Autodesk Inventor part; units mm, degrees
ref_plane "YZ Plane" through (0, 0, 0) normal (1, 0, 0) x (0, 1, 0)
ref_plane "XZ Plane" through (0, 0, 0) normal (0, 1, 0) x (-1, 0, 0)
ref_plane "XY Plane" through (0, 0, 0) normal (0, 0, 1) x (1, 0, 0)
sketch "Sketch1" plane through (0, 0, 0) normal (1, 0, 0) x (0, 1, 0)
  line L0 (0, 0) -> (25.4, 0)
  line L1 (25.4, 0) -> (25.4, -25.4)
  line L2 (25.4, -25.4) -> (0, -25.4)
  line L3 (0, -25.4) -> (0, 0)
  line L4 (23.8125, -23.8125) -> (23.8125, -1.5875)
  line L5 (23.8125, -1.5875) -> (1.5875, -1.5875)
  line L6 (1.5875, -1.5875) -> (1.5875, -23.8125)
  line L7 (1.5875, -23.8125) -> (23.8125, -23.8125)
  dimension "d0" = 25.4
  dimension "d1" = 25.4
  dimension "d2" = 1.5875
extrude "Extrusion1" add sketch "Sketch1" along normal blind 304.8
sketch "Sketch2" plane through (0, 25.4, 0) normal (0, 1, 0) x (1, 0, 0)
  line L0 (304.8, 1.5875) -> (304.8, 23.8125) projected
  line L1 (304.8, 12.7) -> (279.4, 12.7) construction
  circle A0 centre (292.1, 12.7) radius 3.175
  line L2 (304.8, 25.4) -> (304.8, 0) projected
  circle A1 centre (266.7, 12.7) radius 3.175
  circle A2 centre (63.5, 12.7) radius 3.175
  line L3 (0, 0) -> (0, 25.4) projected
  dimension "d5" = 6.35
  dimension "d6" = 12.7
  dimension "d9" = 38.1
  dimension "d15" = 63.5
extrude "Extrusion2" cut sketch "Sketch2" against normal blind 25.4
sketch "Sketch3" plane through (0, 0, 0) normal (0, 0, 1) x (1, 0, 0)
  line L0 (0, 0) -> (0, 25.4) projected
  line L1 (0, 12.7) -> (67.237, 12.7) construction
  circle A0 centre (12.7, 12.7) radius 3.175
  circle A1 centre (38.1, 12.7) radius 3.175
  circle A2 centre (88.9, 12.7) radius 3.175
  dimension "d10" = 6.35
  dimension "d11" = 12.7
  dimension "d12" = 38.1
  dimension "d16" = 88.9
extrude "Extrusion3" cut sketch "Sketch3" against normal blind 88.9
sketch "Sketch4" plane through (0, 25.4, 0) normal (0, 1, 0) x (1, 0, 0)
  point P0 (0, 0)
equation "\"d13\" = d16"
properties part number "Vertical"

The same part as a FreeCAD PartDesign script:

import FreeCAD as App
import Part
import Sketcher

V = App.Vector
Q = App.Units.Quantity


def add_polygon(sketch, points):
    """Adds a closed chain of lines whose ends are joined by coincident constraints."""
    first, n = sketch.GeometryCount, len(points)
    for a, b in zip(points, points[1:] + points[:1]):
        sketch.addGeometry(Part.LineSegment(App.Vector(*a, 0), App.Vector(*b, 0)), False)
    for i in range(n):
        sketch.addConstraint(Sketcher.Constraint("Coincident", first + i, 2, first + (i + 1) % n, 1))

doc = App.newDocument("Part")
body = doc.addObject("PartDesign::Body", "Body")

sketch1 = doc.addObject("Sketcher::SketchObject", "Sketch")
body.addObject(sketch1)
sketch1.AttachmentSupport = (doc.YZ_Plane, [""])
sketch1.MapMode = "FlatFace"
add_polygon(sketch1, [(25, 0), (0, 0), (0, -25), (25, -25)])
add_polygon(sketch1, [(24, -2), (24, -24), (2, -24), (2, -2)])
sketch1.addConstraint(Sketcher.Constraint("Horizontal", 0))
sketch1.addConstraint(Sketcher.Constraint("Vertical", 1))
sketch1.addConstraint(Sketcher.Constraint("Horizontal", 2))
sketch1.addConstraint(Sketcher.Constraint("Vertical", 3))
sketch1.addConstraint(Sketcher.Constraint("Vertical", 4))
sketch1.addConstraint(Sketcher.Constraint("Horizontal", 5))
sketch1.addConstraint(Sketcher.Constraint("Vertical", 6))
sketch1.addConstraint(Sketcher.Constraint("Horizontal", 7))
sketch1.addConstraint(Sketcher.Constraint("Coincident", 0, 2, -1, 1))
sketch1.addConstraint(Sketcher.Constraint("Equal", 2, 1))
sketch1.addConstraint(Sketcher.Constraint("Equal", 7, 4))
sketch1.addConstraint(Sketcher.Constraint("DistanceX", 0, 2, 0, 1, Q("1 in")))
sketch1.addConstraint(Sketcher.Constraint("DistanceX", -1, 1, 5, 2, Q("0.0625 in")))
sketch1.addConstraint(Sketcher.Constraint("DistanceY", 6, 2, -1, 1, Q("0.0625 in")))
sketch1.addConstraint(Sketcher.Constraint("DistanceX", 4, 2, 2, 2, Q("0.0625 in")))
pad1 = doc.addObject("PartDesign::Pad", "Pad")
body.addObject(pad1)
pad1.Profile = sketch1
pad1.Length = Q("12 in")

sketch2 = doc.addObject("Sketcher::SketchObject", "Sketch001")
body.addObject(sketch2)
sketch2.AttachmentSupport = (doc.XZ_Plane, [""])
sketch2.MapMode = "FlatFace"
sketch2.AttachmentOffset = App.Placement(V(0, 0, -1 * 25.4), App.Rotation())
sketch2.addGeometry(Part.Circle(V(292.1, -12.7, 0), V(0, 0, 1), 3.2), False)
sketch2.addGeometry(Part.Circle(V(266.7, -12.7, 0), V(0, 0, 1), 3.2), False)
sketch2.addGeometry(Part.Circle(V(63.5, -12.7, 0), V(0, 0, 1), 3.2), False)
sketch2.addConstraint(Sketcher.Constraint("Equal", 0, 1))
sketch2.addConstraint(Sketcher.Constraint("Equal", 1, 2))
sketch2.addConstraint(Sketcher.Constraint("Horizontal", 0, 3, 1, 3))
sketch2.addConstraint(Sketcher.Constraint("Horizontal", 1, 3, 2, 3))
sketch2.addConstraint(Sketcher.Constraint("Diameter", 0, Q("0.25 in")))
sketch2.addConstraint(Sketcher.Constraint("DistanceY", 0, 3, -1, 1, Q("0.5 in")))
sketch2.addConstraint(Sketcher.Constraint("DistanceX", -1, 1, 2, 3, Q("2.5 in")))
sketch2.addConstraint(Sketcher.Constraint("DistanceX", 1, 3, 0, 3, Q("1 in")))
sketch2.addConstraint(Sketcher.Constraint("DistanceX", 2, 3, 1, 3, Q("8 in")))
pocket1 = doc.addObject("PartDesign::Pocket", "Pocket")
body.addObject(pocket1)
pocket1.Profile = sketch2
pocket1.Length = Q("1 in")
pocket1.Reversed = True

sketch3 = doc.addObject("Sketcher::SketchObject", "Sketch002")
body.addObject(sketch3)
sketch3.AttachmentSupport = (doc.XY_Plane, [""])
sketch3.MapMode = "FlatFace"
sketch3.addGeometry(Part.Circle(V(12.7, 12.7, 0), V(0, 0, 1), 3.2), False)
sketch3.addGeometry(Part.Circle(V(38.1, 12.7, 0), V(0, 0, 1), 3.2), False)
sketch3.addGeometry(Part.Circle(V(88.9, 12.7, 0), V(0, 0, 1), 3.2), False)
sketch3.addConstraint(Sketcher.Constraint("Equal", 0, 1))
sketch3.addConstraint(Sketcher.Constraint("Equal", 1, 2))
sketch3.addConstraint(Sketcher.Constraint("Horizontal", 0, 3, 1, 3))
sketch3.addConstraint(Sketcher.Constraint("Horizontal", 1, 3, 2, 3))
sketch3.addConstraint(Sketcher.Constraint("Diameter", 0, Q("0.25 in")))
sketch3.addConstraint(Sketcher.Constraint("DistanceX", -1, 1, 0, 3, Q("0.5 in")))
sketch3.addConstraint(Sketcher.Constraint("DistanceY", -1, 1, 0, 3, Q("0.5 in")))
sketch3.addConstraint(Sketcher.Constraint("DistanceX", -1, 1, 1, 3, Q("1.5 in")))
sketch3.addConstraint(Sketcher.Constraint("DistanceX", -1, 1, 2, 3, Q("3.5 in")))
pocket2 = doc.addObject("PartDesign::Pocket", "Pocket001")
body.addObject(pocket2)
pocket2.Profile = sketch3
pocket2.Length = Q("3.5 in")

doc.recompute()
